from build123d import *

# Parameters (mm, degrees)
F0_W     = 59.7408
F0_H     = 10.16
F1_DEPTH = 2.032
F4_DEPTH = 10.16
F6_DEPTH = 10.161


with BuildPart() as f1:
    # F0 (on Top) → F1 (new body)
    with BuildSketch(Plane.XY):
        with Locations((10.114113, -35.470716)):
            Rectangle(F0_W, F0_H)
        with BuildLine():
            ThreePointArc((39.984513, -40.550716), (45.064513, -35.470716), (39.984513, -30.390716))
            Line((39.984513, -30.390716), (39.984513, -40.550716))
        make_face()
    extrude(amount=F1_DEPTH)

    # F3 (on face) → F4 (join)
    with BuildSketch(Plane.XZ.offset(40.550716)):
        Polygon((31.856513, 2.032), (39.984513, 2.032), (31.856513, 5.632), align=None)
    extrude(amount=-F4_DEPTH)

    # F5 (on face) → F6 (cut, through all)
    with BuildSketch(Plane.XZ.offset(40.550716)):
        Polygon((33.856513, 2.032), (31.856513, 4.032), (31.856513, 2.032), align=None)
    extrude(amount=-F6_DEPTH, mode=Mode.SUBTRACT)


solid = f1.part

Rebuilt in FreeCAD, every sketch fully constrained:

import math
import FreeCAD as App
import Part
import Sketcher
from FreeCAD import Vector
Q = App.Units.Quantity


def add_polygon(sketch, points):
    """Adds a closed chain of lines whose ends are joined by coincident constraints."""
    first, n = sketch.GeometryCount, len(points)
    for a, b in zip(points, points[1:] + points[:1]):
        sketch.addGeometry(Part.LineSegment(App.Vector(*a, 0), App.Vector(*b, 0)), False)
    for i in range(n):
        sketch.addConstraint(Sketcher.Constraint("Coincident", first + i, 2, first + (i + 1) % n, 1))

doc = App.newDocument("Part")
params = doc.addObject("Spreadsheet::Sheet", "Params")
for row, (alias, value) in enumerate([
    ("sketch1_radius", "0.2 in"),
    ("sketch1_width", "2.352 in"),
    ("pad1_length", "0.08 in"),
    ("sketch2_width", "0.32 in"),
    ("pad2_length", "0.4 in"),
], start=1):
    params.set(f"A{row}", alias)
    params.set(f"B{row}", "=" + value)
    params.setAlias(f"B{row}", alias)

body = doc.addObject("PartDesign::Body", "Body")

# Sketch on XY plane
sketch1 = body.newObject("Sketcher::SketchObject", "Sketch")
sketch1.AttachmentSupport = (doc.getObject("XY_Plane"), [""])
sketch1.MapMode = "FlatFace"
sketch1.addGeometry(Part.LineSegment(Vector(-20, -30, 0), Vector(-20, -41, 0)), False)
sketch1.addGeometry(Part.LineSegment(Vector(-20, -41, 0), Vector(40, -41, 0)), False)
sketch1.addGeometry(Part.ArcOfCircle(Part.Circle(Vector(40, -35, 0), Vector(0, 0, 1), 5), math.radians(-90), math.radians(90)), False)
sketch1.addGeometry(Part.LineSegment(Vector(40, -30, 0), Vector(-20, -30, 0)), False)
sketch1.addConstraint(Sketcher.Constraint("Coincident", 0, 2, 1, 1))
sketch1.addConstraint(Sketcher.Constraint("Tangent", 1, 2, 2, 1))
sketch1.addConstraint(Sketcher.Constraint("Tangent", 2, 2, 3, 1))
sketch1.addConstraint(Sketcher.Constraint("Coincident", 3, 2, 0, 1))
sketch1.addConstraint(Sketcher.Constraint("Vertical", 0))
sketch1.addConstraint(Sketcher.Constraint("Horizontal", 1))
sketch1.addConstraint(Sketcher.Constraint("Horizontal", 3))
sketch1.addConstraint(Sketcher.Constraint("Radius", 2, Q("0.2 in")))
sketch1.addConstraint(Sketcher.Constraint("DistanceX", 1, 1, 1, 2, Q("2.352 in")))
sketch1.addConstraint(Sketcher.Constraint("DistanceX", -1, 1, 2, 3, Q("39.984513 mm")))
sketch1.addConstraint(Sketcher.Constraint("DistanceY", 2, 3, -1, 1, Q("35.470716 mm")))
sketch1.setExpression("Constraints[7]", "Params.sketch1_radius")
sketch1.setExpression("Constraints[8]", "Params.sketch1_width")
pad1 = body.newObject("PartDesign::Pad", "Pad")
pad1.Profile = sketch1
pad1.setExpression("Length", "Params.pad1_length")

# Sketch on XZ plane
sketch2 = body.newObject("Sketcher::SketchObject", "Sketch001")
sketch2.AttachmentSupport = (doc.getObject("XZ_Plane"), [""])
sketch2.MapMode = "FlatFace"
sketch2.AttachmentOffset = App.Placement(Vector(0, 0, 40.550716), App.Rotation())
add_polygon(sketch2, [(31.9, 2), (40, 2), (31.9, 5.6)])  # lines 0-2
sketch2.addConstraint(Sketcher.Constraint("Horizontal", 0))
sketch2.addConstraint(Sketcher.Constraint("Vertical", 2))
sketch2.addConstraint(Sketcher.Constraint("DistanceX", 0, 1, 0, 2, Q("0.32 in")))
sketch2.addConstraint(Sketcher.Constraint("DistanceY", -1, 1, 0, 2, Q("0.08 in")))
sketch2.addConstraint(Sketcher.Constraint("DistanceY", 2, 2, 2, 1, Q("3.6 mm")))
sketch2.addConstraint(Sketcher.Constraint("DistanceX", -1, 1, 0, 2, Q("39.984513 mm")))
sketch2.setExpression("Constraints[5]", "Params.sketch2_width")
pad2 = body.newObject("PartDesign::Pad", "Pad001")
pad2.Profile = sketch2
pad2.setExpression("Length", "Params.pad2_length")
pad2.Reversed = True

# Sketch on XZ plane
sketch3 = body.newObject("Sketcher::SketchObject", "Sketch002")
sketch3.AttachmentSupport = (doc.getObject("XZ_Plane"), [""])
sketch3.MapMode = "FlatFace"
sketch3.AttachmentOffset = App.Placement(Vector(0, 0, 40.550716), App.Rotation())
add_polygon(sketch3, [(33.9, 2), (31.9, 4), (31.9, 2)])  # lines 0-2
sketch3.addConstraint(Sketcher.Constraint("Vertical", 1))
sketch3.addConstraint(Sketcher.Constraint("Horizontal", 2))
sketch3.addConstraint(Sketcher.Constraint("Equal", 2, 1))
sketch3.addConstraint(Sketcher.Constraint("DistanceY", -1, 1, 1, 2, Q("0.08 in")))
sketch3.addConstraint(Sketcher.Constraint("DistanceX", 2, 1, 2, 2, Q("2 mm")))
sketch3.addConstraint(Sketcher.Constraint("DistanceX", -1, 1, 0, 2, Q("31.856513 mm")))
pocket1 = body.newObject("PartDesign::Pocket", "Pocket")
pocket1.Profile = sketch3
pocket1.Type = "ThroughAll"

doc.recompute()
